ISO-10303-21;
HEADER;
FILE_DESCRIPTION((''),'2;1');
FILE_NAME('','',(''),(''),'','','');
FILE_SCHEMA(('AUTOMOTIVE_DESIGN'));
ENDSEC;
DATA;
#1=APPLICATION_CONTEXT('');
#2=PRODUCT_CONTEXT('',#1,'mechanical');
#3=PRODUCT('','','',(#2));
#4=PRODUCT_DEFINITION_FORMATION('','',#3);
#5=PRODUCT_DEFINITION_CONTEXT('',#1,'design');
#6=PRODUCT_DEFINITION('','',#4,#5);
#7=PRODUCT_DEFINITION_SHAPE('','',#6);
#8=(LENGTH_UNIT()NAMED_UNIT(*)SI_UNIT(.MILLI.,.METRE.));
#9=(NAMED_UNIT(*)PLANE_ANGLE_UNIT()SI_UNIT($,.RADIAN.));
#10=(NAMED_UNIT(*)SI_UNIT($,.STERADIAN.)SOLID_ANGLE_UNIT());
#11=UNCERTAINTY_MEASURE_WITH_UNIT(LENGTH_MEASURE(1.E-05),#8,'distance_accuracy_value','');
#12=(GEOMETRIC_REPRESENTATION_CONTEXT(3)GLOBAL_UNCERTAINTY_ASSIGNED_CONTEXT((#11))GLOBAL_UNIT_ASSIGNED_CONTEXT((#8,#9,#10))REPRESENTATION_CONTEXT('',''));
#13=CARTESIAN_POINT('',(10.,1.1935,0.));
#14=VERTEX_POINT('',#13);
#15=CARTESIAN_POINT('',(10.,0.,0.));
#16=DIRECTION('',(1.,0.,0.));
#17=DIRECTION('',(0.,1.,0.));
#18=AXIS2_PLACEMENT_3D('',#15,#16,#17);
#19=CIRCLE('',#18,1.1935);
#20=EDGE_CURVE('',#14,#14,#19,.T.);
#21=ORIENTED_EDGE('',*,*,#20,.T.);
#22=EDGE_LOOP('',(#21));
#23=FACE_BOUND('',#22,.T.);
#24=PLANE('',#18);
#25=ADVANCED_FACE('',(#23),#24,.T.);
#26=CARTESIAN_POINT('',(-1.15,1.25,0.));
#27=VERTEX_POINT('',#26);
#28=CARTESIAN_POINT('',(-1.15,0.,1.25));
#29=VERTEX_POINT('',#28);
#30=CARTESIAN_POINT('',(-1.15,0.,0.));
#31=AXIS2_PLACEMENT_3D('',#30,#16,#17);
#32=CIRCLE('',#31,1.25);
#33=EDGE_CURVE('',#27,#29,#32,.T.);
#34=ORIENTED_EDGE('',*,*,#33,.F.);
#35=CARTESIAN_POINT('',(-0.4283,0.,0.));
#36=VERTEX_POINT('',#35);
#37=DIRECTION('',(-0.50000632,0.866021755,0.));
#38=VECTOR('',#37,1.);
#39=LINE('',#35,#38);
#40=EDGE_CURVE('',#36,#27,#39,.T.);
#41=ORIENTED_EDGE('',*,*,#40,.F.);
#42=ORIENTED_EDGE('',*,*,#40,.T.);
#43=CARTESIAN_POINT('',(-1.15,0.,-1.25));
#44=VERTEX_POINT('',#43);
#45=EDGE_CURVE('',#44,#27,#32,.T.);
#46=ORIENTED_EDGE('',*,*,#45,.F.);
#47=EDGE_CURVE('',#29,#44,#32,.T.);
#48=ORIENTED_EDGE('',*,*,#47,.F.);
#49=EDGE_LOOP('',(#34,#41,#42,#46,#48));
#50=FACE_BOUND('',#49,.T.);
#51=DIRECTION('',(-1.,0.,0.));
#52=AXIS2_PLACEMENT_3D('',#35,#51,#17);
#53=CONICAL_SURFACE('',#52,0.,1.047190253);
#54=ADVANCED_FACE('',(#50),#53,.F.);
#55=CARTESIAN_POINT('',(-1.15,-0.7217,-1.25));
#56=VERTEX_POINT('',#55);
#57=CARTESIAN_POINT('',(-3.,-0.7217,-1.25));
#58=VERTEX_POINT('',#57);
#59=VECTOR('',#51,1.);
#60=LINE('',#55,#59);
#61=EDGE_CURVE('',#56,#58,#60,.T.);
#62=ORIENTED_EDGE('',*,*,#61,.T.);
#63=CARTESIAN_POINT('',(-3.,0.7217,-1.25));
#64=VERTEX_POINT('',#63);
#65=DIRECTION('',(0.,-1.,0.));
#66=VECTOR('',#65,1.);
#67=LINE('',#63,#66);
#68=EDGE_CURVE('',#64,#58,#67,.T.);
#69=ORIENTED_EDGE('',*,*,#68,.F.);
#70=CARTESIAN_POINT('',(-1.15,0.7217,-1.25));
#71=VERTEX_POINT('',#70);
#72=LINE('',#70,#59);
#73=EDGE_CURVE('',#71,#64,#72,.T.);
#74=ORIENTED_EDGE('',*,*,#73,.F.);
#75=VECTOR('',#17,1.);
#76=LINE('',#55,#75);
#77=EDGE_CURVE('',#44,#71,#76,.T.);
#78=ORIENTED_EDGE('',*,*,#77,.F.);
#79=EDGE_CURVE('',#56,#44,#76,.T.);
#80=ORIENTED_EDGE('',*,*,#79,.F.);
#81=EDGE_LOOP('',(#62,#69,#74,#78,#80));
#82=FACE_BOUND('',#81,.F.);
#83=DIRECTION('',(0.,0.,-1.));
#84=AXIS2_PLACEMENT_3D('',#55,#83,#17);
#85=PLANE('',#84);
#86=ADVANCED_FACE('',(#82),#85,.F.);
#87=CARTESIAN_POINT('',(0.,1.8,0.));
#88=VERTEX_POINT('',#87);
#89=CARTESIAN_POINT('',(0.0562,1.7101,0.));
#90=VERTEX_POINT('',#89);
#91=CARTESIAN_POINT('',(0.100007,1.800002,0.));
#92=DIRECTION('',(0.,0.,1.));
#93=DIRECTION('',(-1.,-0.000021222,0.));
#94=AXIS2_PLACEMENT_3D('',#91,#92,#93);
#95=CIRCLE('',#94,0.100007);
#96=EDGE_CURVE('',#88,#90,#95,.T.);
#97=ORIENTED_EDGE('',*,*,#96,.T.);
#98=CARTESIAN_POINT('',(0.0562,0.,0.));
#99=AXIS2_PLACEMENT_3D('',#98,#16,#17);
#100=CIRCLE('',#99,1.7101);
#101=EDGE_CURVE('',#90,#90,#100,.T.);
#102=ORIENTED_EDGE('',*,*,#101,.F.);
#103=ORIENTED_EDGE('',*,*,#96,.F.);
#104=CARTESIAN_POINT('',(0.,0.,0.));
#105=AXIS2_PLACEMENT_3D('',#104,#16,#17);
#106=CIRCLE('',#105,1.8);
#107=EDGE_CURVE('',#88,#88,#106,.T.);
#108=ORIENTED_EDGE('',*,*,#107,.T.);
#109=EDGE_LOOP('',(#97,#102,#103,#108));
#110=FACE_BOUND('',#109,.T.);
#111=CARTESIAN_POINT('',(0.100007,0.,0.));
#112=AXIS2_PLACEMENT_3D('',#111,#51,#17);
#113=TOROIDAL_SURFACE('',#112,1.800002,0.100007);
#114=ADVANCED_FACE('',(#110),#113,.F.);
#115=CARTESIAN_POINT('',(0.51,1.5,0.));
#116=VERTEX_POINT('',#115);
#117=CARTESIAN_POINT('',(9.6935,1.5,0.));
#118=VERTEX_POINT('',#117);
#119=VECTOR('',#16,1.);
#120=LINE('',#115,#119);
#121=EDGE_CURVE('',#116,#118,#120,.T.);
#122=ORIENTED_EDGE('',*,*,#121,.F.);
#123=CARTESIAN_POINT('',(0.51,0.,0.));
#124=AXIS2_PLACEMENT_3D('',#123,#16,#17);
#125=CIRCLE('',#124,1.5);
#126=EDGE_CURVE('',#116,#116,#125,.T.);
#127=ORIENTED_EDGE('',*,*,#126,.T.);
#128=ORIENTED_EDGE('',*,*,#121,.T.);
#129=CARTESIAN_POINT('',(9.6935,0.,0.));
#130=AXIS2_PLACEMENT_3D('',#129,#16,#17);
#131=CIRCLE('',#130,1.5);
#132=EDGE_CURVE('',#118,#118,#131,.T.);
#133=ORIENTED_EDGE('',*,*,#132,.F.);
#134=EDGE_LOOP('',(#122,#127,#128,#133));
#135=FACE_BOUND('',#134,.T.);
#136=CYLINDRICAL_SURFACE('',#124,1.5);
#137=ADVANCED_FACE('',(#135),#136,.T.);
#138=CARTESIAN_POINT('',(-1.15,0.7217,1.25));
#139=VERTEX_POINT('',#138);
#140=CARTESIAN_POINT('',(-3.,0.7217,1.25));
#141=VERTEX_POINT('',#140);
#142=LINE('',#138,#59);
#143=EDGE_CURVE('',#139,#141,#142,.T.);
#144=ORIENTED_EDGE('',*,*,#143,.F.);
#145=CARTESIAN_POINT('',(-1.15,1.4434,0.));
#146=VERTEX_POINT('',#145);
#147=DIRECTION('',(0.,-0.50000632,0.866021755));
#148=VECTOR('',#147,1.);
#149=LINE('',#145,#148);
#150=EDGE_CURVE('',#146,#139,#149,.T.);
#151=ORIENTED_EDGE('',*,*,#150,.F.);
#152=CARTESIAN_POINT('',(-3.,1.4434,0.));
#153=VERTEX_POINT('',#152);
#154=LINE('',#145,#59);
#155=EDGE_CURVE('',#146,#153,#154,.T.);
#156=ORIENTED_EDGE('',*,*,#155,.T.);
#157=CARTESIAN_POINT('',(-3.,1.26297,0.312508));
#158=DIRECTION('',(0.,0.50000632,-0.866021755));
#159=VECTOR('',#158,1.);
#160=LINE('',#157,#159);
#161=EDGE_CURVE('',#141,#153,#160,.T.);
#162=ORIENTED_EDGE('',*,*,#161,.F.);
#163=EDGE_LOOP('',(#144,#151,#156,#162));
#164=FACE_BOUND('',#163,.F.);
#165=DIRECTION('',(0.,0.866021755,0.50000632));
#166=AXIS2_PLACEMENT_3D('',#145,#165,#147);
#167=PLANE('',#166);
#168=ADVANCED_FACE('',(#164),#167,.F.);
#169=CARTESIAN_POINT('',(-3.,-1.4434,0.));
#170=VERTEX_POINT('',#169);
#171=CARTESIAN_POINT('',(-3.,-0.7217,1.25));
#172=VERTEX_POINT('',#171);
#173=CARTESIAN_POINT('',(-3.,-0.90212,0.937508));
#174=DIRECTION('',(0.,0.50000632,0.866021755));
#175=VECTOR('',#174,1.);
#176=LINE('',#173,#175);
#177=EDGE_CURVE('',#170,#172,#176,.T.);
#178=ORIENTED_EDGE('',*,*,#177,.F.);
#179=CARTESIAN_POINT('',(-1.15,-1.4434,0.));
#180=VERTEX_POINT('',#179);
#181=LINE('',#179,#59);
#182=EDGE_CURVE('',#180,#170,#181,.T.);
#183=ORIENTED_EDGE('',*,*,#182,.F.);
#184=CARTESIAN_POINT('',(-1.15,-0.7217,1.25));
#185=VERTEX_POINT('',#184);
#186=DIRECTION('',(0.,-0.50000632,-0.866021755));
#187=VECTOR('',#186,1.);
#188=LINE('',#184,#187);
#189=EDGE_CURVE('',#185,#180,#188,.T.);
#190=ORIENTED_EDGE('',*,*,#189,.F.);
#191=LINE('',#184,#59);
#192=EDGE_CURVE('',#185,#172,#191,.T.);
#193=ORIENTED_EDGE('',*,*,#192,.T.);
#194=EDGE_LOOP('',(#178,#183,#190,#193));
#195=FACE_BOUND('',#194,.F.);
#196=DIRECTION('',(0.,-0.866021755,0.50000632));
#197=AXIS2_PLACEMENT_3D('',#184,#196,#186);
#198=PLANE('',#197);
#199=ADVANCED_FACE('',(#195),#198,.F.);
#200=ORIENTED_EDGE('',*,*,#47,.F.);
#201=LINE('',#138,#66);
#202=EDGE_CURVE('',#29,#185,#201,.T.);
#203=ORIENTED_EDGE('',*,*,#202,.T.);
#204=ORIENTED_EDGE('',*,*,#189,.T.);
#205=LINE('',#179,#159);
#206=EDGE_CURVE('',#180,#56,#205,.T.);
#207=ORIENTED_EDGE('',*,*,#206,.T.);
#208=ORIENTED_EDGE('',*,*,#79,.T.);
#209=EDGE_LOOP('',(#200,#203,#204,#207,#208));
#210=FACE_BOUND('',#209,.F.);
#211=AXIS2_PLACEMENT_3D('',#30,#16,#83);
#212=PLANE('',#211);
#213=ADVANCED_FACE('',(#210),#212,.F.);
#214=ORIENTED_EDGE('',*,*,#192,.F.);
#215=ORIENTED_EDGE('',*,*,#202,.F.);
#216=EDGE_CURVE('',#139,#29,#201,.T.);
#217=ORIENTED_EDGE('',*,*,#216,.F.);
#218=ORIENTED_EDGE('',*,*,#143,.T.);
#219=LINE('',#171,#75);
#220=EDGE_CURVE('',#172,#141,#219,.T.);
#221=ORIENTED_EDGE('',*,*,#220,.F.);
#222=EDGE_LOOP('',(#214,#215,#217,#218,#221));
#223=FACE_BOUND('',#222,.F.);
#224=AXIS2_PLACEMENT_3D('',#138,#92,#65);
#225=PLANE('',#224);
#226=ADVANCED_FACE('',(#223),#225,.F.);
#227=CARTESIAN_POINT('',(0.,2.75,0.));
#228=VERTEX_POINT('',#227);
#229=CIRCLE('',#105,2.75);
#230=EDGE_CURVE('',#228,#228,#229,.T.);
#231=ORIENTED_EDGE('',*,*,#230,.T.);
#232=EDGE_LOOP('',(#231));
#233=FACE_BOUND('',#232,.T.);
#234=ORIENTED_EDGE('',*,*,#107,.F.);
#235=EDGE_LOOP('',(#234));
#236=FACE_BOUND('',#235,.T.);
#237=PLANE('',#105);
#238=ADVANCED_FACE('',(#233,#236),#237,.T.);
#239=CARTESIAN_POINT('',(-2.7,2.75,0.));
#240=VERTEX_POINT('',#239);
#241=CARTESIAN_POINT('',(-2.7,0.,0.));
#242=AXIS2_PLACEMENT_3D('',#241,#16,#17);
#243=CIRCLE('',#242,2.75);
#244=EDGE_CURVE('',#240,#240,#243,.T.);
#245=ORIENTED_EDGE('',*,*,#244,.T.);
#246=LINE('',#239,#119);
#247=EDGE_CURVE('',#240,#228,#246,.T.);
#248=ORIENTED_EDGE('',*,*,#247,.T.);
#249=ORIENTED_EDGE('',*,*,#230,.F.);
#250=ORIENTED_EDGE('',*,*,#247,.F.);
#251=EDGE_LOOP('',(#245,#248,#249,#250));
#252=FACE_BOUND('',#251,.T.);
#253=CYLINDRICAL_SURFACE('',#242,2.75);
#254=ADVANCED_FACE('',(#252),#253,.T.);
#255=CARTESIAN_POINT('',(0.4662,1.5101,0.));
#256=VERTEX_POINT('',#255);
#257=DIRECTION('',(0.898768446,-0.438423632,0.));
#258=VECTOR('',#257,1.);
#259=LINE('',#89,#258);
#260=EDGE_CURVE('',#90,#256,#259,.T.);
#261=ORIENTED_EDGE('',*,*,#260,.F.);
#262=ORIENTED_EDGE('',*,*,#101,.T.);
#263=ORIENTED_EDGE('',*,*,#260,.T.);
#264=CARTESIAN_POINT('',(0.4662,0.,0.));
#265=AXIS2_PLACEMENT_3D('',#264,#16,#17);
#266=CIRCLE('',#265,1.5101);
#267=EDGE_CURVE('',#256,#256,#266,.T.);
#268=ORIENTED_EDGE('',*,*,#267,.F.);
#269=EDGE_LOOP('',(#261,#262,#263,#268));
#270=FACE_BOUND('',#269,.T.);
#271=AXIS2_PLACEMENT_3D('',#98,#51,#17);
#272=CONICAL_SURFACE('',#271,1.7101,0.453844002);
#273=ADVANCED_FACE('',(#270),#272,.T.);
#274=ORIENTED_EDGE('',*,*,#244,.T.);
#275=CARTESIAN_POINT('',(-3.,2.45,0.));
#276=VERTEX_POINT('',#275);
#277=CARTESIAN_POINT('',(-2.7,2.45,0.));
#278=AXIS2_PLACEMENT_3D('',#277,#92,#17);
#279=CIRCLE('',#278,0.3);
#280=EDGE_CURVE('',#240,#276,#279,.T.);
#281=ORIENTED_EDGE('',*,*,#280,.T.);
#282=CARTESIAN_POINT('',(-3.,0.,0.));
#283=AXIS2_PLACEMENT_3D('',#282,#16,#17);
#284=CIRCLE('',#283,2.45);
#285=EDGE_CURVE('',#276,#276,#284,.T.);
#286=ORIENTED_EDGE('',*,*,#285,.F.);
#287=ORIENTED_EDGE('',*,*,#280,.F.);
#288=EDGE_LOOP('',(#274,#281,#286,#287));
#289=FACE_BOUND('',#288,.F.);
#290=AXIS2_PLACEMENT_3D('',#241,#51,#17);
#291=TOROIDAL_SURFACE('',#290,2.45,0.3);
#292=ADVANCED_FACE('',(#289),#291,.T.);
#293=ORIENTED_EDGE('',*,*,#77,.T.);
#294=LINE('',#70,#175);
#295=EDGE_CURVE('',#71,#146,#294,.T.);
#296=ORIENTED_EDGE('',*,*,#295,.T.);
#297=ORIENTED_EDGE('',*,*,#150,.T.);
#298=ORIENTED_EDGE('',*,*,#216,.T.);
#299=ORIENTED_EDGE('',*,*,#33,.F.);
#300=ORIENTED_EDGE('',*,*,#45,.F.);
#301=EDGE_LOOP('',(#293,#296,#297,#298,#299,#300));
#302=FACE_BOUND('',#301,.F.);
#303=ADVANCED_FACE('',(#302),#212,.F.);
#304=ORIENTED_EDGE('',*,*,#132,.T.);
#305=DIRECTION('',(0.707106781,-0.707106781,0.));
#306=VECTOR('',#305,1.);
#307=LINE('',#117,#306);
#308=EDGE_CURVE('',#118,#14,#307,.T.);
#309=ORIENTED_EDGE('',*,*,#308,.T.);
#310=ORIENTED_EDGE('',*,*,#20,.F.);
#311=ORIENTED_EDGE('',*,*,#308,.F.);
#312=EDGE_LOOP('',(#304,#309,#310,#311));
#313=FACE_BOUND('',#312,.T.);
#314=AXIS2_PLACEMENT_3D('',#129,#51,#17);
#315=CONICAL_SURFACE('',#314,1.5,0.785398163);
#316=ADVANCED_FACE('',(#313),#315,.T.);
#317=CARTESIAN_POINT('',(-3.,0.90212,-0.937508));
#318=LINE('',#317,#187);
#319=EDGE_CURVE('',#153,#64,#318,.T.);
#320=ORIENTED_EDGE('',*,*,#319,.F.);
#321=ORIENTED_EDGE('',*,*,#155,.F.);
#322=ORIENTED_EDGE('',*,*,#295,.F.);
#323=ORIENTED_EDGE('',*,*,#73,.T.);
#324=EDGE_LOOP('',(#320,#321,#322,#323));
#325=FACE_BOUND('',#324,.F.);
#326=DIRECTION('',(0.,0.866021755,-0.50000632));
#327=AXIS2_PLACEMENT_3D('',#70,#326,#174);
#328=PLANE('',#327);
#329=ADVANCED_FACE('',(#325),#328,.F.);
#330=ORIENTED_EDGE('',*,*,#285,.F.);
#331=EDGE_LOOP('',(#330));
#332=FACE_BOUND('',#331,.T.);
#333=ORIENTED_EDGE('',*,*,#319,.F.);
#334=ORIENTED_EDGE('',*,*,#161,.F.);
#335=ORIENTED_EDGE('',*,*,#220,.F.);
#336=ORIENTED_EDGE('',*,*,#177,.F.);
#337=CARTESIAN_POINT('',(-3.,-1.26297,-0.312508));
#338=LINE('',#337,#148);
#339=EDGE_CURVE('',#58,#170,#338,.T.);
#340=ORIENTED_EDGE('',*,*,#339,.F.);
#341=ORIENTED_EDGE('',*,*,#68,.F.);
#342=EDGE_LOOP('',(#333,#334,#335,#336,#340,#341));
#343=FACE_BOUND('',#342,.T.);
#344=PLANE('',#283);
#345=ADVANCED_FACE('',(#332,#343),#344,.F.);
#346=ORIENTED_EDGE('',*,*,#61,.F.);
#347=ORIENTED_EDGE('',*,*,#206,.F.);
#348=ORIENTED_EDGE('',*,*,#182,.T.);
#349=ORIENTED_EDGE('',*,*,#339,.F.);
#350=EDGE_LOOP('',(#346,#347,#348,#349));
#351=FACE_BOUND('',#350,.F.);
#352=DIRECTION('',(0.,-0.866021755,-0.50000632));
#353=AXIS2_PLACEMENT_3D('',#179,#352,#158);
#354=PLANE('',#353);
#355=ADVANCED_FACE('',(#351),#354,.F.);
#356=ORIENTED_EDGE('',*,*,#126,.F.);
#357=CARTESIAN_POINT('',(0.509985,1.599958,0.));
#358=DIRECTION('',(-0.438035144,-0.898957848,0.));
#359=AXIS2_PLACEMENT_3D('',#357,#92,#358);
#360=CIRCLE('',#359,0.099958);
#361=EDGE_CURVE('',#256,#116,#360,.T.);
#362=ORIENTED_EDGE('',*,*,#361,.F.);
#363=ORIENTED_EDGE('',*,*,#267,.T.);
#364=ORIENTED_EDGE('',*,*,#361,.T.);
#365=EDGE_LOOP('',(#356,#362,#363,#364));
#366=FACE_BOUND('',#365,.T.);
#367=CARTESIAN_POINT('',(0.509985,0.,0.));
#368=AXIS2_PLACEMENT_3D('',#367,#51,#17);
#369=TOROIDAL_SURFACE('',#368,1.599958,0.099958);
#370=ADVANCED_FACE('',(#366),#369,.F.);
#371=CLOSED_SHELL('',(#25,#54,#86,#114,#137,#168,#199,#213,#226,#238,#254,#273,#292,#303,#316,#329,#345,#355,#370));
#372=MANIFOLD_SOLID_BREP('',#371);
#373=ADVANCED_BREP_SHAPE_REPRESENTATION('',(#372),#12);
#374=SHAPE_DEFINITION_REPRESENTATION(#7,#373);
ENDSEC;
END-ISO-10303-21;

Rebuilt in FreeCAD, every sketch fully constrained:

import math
import FreeCAD as App
import Part
import Sketcher
Q = App.Units.Quantity


def add_polygon(sketch, points):
    """Adds a closed chain of lines whose ends are joined by coincident constraints."""
    first, n = sketch.GeometryCount, len(points)
    for a, b in zip(points, points[1:] + points[:1]):
        sketch.addGeometry(Part.LineSegment(App.Vector(*a, 0), App.Vector(*b, 0)), False)
    for i in range(n):
        sketch.addConstraint(Sketcher.Constraint("Coincident", first + i, 2, first + (i + 1) % n, 1))

doc = App.newDocument("Part")
body = doc.addObject("PartDesign::Body", "Body")

# Sketch on XY plane
sketch1 = body.newObject("Sketcher::SketchObject", "Sketch")
sketch1.AttachmentSupport = (doc.getObject("XY_Plane"), [""])
sketch1.MapMode = "FlatFace"
sketch1.addGeometry(Part.LineSegment(App.Vector(-0.428, 0, 0), App.Vector(10, 0, 0)), False)
sketch1.addGeometry(Part.LineSegment(App.Vector(10, 0, 0), App.Vector(10, 1.194, 0)), False)
sketch1.addGeometry(Part.LineSegment(App.Vector(10, 1.194, 0), App.Vector(9.694, 1.5, 0)), False)
sketch1.addGeometry(Part.LineSegment(App.Vector(9.694, 1.5, 0), App.Vector(0.51, 1.5, 0)), False)
sketch1.addGeometry(Part.ArcOfCircle(Part.Circle(App.Vector(0.51, 1.6, 0), App.Vector(0, 0, 1), 0.1), math.radians(-116), math.radians(-90)), False)
sketch1.addGeometry(Part.LineSegment(App.Vector(0.466, 1.51, 0), App.Vector(0.056, 1.71, 0)), False)
sketch1.addGeometry(Part.ArcOfCircle(Part.Circle(App.Vector(0.1, 1.8, 0), App.Vector(0, 0, 1), 0.1), math.radians(180), math.radians(244)), False)
sketch1.addGeometry(Part.LineSegment(App.Vector(0, 1.8, 0), App.Vector(0, 2.75, 0)), False)
sketch1.addGeometry(Part.LineSegment(App.Vector(0, 2.75, 0), App.Vector(-2.7, 2.75, 0)), False)
sketch1.addGeometry(Part.ArcOfCircle(Part.Circle(App.Vector(-2.7, 2.45, 0), App.Vector(0, 0, 1), 0.3), math.radians(90), math.radians(180)), False)
sketch1.addGeometry(Part.LineSegment(App.Vector(-3, 2.45, 0), App.Vector(-3, 1.25, 0)), False)
sketch1.addGeometry(Part.LineSegment(App.Vector(-3, 1.25, 0), App.Vector(-1.15, 1.25, 0)), False)
sketch1.addGeometry(Part.LineSegment(App.Vector(-1.15, 1.25, 0), App.Vector(-0.428, 0, 0)), False)
sketch1.addConstraint(Sketcher.Constraint("Coincident", 0, 2, 1, 1))
sketch1.addConstraint(Sketcher.Constraint("Coincident", 1, 2, 2, 1))
sketch1.addConstraint(Sketcher.Constraint("Coincident", 2, 2, 3, 1))
sketch1.addConstraint(Sketcher.Constraint("Tangent", 3, 2, 4, 2))
sketch1.addConstraint(Sketcher.Constraint("Tangent", 4, 1, 5, 1))
sketch1.addConstraint(Sketcher.Constraint("Tangent", 5, 2, 6, 2))
sketch1.addConstraint(Sketcher.Constraint("Tangent", 6, 1, 7, 1))
sketch1.addConstraint(Sketcher.Constraint("Coincident", 7, 2, 8, 1))
sketch1.addConstraint(Sketcher.Constraint("Tangent", 8, 2, 9, 1))
sketch1.addConstraint(Sketcher.Constraint("Tangent", 9, 2, 10, 1))
sketch1.addConstraint(Sketcher.Constraint("Coincident", 10, 2, 11, 1))
sketch1.addConstraint(Sketcher.Constraint("Coincident", 11, 2, 12, 1))
sketch1.addConstraint(Sketcher.Constraint("Coincident", 12, 2, 0, 1))
sketch1.addConstraint(Sketcher.Constraint("Horizontal", 0))
sketch1.addConstraint(Sketcher.Constraint("Vertical", 1))
sketch1.addConstraint(Sketcher.Constraint("Horizontal", 3))
sketch1.addConstraint(Sketcher.Constraint("Vertical", 7))
sketch1.addConstraint(Sketcher.Constraint("Horizontal", 8))
sketch1.addConstraint(Sketcher.Constraint("Vertical", 10))
sketch1.addConstraint(Sketcher.Constraint("Horizontal", 11))
sketch1.addConstraint(Sketcher.Constraint("Equal", 4, 6))
sketch1.addConstraint(Sketcher.Constraint("PointOnObject", 0, 2, -1))
sketch1.addConstraint(Sketcher.Constraint("PointOnObject", 6, 1, -2))
sketch1.addConstraint(Sketcher.Constraint("Radius", 4, 0.1))
sketch1.addConstraint(Sketcher.Constraint("Radius", 9, 0.3))
sketch1.addConstraint(Sketcher.Constraint("Angle", 2, Q("135 deg")))
sketch1.addConstraint(Sketcher.Constraint("Angle", 12, Q("-59.9996 deg")))
sketch1.addConstraint(Sketcher.Constraint("DistanceX", 8, 2, 8, 1, 2.7))
sketch1.addConstraint(Sketcher.Constraint("DistanceY", 10, 2, 10, 1, 1.2))
sketch1.addConstraint(Sketcher.Constraint("DistanceX", -1, 1, 0, 2, 10.0))
sketch1.addConstraint(Sketcher.Constraint("DistanceX", 11, 1, 11, 2, 1.85))
sketch1.addConstraint(Sketcher.Constraint("DistanceY", 7, 1, 7, 2, 0.95))
sketch1.addConstraint(Sketcher.Constraint("DistanceY", -1, 1, 4, 3, 1.6))
sketch1.addConstraint(Sketcher.Constraint("DistanceY", -1, 1, 6, 3, 1.8))
sketch1.addConstraint(Sketcher.Constraint("DistanceX", -1, 1, 4, 3, 0.51))
sketch1.addConstraint(Sketcher.Constraint("DistanceX", 3, 2, 3, 1, 9.1835))
revolution = body.newObject("PartDesign::Revolution", "Revolution")
revolution.Profile = sketch1
revolution.ReferenceAxis = (sketch1, ["H_Axis"])
revolution.Angle = 360

# Sketch on YZ plane
sketch2 = body.newObject("Sketcher::SketchObject", "Sketch001")
sketch2.AttachmentSupport = (doc.getObject("YZ_Plane"), [""])
sketch2.MapMode = "FlatFace"
sketch2.AttachmentOffset = App.Placement(App.Vector(0, 0, -1.15), App.Rotation())
add_polygon(sketch2, [(0.7, 1.2), (-0.7, 1.2), (-1.4, 0), (-0.7, -1.2), (0.7, -1.2), (1.4, 0)])  # lines 0-5
sketch2.addConstraint(Sketcher.Constraint("Horizontal", 0))
sketch2.addConstraint(Sketcher.Constraint("Horizontal", 3))
sketch2.addConstraint(Sketcher.Constraint("Symmetric", 0, 2, 3, 2, -1, 1))
sketch2.addConstraint(Sketcher.Constraint("Symmetric", 1, 2, 4, 2, -1, 1))
sketch2.addConstraint(Sketcher.Constraint("PointOnObject", 1, 2, -1))
sketch2.addConstraint(Sketcher.Constraint("Parallel", 2, 5))
sketch2.addConstraint(Sketcher.Constraint("Vertical", 0, 2, 2, 2))
sketch2.addConstraint(Sketcher.Constraint("Angle", 1, Q("-120.0004 deg")))
sketch2.addConstraint(Sketcher.Constraint("DistanceY", 2, 2, 0, 2, 2.5))
sketch2.addConstraint(Sketcher.Constraint("DistanceX", 0, 2, 0, 1, 1.4434))
pocket1 = body.newObject("PartDesign::Pocket", "Pocket")
pocket1.Profile = sketch2
pocket1.Length = 2.6

doc.recompute()
